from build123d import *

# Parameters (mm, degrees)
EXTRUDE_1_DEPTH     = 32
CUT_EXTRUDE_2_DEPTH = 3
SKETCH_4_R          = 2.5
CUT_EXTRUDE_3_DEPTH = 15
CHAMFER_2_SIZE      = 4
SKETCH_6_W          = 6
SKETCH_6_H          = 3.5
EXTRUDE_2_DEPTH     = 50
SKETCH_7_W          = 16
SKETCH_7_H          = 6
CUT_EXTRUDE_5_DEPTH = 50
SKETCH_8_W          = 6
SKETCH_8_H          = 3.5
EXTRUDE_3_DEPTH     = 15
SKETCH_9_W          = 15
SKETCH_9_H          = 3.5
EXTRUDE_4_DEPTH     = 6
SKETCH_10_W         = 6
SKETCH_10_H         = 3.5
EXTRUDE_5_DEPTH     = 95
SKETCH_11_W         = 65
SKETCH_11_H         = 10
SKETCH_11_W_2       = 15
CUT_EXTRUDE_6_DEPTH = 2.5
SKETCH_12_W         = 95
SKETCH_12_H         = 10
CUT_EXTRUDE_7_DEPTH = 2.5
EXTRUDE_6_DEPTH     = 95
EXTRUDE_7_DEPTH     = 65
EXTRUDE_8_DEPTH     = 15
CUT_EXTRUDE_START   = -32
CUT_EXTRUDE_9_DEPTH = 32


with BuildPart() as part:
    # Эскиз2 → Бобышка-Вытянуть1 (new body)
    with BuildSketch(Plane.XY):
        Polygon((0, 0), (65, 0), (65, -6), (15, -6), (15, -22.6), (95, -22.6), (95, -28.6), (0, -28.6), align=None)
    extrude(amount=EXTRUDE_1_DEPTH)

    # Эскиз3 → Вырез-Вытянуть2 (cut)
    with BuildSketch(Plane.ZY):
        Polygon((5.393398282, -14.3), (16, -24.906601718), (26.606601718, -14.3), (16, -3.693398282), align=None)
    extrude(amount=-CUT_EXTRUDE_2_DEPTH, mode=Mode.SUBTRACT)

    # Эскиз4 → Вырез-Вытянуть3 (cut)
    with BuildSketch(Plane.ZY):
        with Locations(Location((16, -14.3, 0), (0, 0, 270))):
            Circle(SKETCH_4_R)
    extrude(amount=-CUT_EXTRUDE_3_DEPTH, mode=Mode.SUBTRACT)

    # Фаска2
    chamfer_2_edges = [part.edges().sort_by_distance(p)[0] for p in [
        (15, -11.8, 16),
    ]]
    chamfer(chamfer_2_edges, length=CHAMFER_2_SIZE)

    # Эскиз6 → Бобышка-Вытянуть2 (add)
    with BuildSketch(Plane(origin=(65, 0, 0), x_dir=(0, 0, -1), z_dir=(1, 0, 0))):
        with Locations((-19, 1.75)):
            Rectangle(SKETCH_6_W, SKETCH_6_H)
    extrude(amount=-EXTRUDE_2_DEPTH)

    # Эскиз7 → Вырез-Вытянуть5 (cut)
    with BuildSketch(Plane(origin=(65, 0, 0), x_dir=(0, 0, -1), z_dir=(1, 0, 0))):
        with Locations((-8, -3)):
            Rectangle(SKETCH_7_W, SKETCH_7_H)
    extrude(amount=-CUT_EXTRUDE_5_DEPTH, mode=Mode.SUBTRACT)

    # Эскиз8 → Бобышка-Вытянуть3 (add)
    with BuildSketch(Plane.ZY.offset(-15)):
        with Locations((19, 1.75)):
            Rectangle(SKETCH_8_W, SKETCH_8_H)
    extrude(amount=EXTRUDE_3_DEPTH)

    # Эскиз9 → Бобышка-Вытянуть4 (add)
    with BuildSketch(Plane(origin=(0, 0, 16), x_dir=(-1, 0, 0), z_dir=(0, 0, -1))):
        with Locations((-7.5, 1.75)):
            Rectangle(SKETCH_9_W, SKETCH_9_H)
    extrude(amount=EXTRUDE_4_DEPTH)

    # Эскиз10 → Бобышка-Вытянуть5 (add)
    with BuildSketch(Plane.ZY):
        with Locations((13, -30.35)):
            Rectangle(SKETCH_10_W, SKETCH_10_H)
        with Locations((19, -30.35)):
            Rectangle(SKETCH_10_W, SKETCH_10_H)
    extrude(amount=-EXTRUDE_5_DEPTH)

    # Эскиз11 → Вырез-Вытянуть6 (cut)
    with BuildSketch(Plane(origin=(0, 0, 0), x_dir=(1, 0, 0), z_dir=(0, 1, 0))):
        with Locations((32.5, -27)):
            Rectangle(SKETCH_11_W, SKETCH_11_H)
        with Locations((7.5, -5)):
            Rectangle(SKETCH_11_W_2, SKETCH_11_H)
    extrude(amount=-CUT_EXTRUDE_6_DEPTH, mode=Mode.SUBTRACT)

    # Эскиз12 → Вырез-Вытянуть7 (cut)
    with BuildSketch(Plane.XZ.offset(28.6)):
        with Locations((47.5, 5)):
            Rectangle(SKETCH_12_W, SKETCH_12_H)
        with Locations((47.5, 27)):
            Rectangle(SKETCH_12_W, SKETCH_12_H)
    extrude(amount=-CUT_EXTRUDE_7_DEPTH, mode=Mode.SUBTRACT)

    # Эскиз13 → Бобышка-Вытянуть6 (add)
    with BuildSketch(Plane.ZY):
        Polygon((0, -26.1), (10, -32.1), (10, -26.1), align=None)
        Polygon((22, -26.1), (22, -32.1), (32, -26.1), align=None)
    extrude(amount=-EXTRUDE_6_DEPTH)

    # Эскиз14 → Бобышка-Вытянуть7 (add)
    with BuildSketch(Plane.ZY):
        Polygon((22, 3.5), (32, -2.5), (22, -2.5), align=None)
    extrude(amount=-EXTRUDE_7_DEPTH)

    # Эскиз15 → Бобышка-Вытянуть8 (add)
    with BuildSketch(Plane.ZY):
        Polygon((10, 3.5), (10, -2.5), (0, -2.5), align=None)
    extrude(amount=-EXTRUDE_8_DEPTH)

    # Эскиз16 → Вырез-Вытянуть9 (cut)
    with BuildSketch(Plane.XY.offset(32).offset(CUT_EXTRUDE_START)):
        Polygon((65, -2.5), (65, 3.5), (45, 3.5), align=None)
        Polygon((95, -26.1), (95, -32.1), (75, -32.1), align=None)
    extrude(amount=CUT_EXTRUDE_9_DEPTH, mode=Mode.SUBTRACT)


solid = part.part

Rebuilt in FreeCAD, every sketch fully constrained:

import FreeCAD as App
import Part
import Sketcher

V = App.Vector
Q = App.Units.Quantity


def edges_at(feature, points):
    """Names of the edges that pass closest to the given points."""
    edges = feature.Shape.Edges
    near = lambda p: min(range(len(edges)), key=lambda i: edges[i].distToShape(Part.Vertex(*p))[0])
    return sorted({f"Edge{near(p) + 1}" for p in points})


def add_polygon(sketch, points):
    """Adds a closed chain of lines whose ends are joined by coincident constraints."""
    first, n = sketch.GeometryCount, len(points)
    for a, b in zip(points, points[1:] + points[:1]):
        sketch.addGeometry(Part.LineSegment(App.Vector(*a, 0), App.Vector(*b, 0)), False)
    for i in range(n):
        sketch.addConstraint(Sketcher.Constraint("Coincident", first + i, 2, first + (i + 1) % n, 1))

doc = App.newDocument("Part")
body = doc.addObject("PartDesign::Body", "Body")

# Sketch on XY plane
sketch1 = doc.addObject("Sketcher::SketchObject", "Sketch")
body.addObject(sketch1)
sketch1.AttachmentSupport = (doc.XY_Plane, [""])
sketch1.MapMode = "FlatFace"
add_polygon(sketch1, [(65, 0), (0, 0), (0, -29), (95, -29), (95, -23), (15, -23), (15, -6), (65, -6)])  # lines 0-7
sketch1.addConstraint([
    Sketcher.Constraint("Horizontal", 0),
    Sketcher.Constraint("Vertical", 1),
    Sketcher.Constraint("Horizontal", 2),
    Sketcher.Constraint("Vertical", 3),
    Sketcher.Constraint("Horizontal", 4),
    Sketcher.Constraint("Vertical", 5),
    Sketcher.Constraint("Horizontal", 6),
    Sketcher.Constraint("Vertical", 7),
    Sketcher.Constraint("Coincident", 0, 2, -1, 1),
    Sketcher.Constraint("Equal", 3, 7),
    Sketcher.Constraint("DistanceX", 0, 2, 0, 1, Q("65 mm")),
    Sketcher.Constraint("DistanceX", 2, 1, 2, 2, Q("95 mm")),
    Sketcher.Constraint("DistanceX", 4, 2, 4, 1, Q("80 mm")),
    Sketcher.Constraint("DistanceY", 3, 1, 3, 2, Q("6 mm")),
    Sketcher.Constraint("DistanceY", 1, 2, 1, 1, Q("28.6 mm")),
])
pad1 = doc.addObject("PartDesign::Pad", "Pad")
body.addObject(pad1)
pad1.Profile = sketch1
pad1.Length = 32

# Sketch on YZ plane
sketch2 = doc.addObject("Sketcher::SketchObject", "Sketch001")
body.addObject(sketch2)
sketch2.AttachmentSupport = (doc.YZ_Plane, [""])
sketch2.MapMode = "FlatFace"
add_polygon(sketch2, [(-14, 5), (-25, 16), (-14, 27), (-4, 16)])  # lines 0-3
sketch2.addConstraint([
    Sketcher.Constraint("Perpendicular", 0, 1),
    Sketcher.Constraint("Perpendicular", 1, 2),
    Sketcher.Constraint("Perpendicular", 2, 3),
    Sketcher.Constraint("Horizontal", 0, 2, 2, 2),
    Sketcher.Constraint("Vertical", 1, 2, 3, 2),
    Sketcher.Constraint("Distance", 0, Q("15 mm")),
    Sketcher.Constraint("DistanceY", -1, 1, 0, 2, Q("16 mm")),
    Sketcher.Constraint("DistanceX", 1, 2, -1, 1, Q("14.3 mm")),
])
pocket1 = doc.addObject("PartDesign::Pocket", "Pocket")
body.addObject(pocket1)
pocket1.Profile = sketch2
pocket1.Length = 3
pocket1.Reversed = True

# Sketch on YZ plane
sketch3 = doc.addObject("Sketcher::SketchObject", "Sketch002")
body.addObject(sketch3)
sketch3.AttachmentSupport = (doc.YZ_Plane, [""])
sketch3.MapMode = "FlatFace"
sketch3.addGeometry(Part.Circle(V(-14.3, 16, 0), V(0, 0, 1), 2.5), False)
sketch3.addConstraint([
    Sketcher.Constraint("Diameter", 0, Q("5 mm")),
    Sketcher.Constraint("DistanceY", -1, 1, 0, 3, Q("16 mm")),
    Sketcher.Constraint("DistanceX", 0, 3, -1, 1, Q("14.3 mm")),
])
pocket2 = doc.addObject("PartDesign::Pocket", "Pocket001")
body.addObject(pocket2)
pocket2.Profile = sketch3
pocket2.Length = 15
pocket2.Reversed = True
doc.recompute()

chamfer = doc.addObject("PartDesign::Chamfer", "Chamfer")
body.addObject(chamfer)
chamfer.Base = (pocket2, edges_at(pocket2, [(15, -11.8, 16)]))
chamfer.Size = 4

# Sketch on YZ plane
sketch4 = doc.addObject("Sketcher::SketchObject", "Sketch003")
body.addObject(sketch4)
sketch4.AttachmentSupport = (doc.YZ_Plane, [""])
sketch4.MapMode = "FlatFace"
sketch4.AttachmentOffset = App.Placement(V(0, 0, 65), App.Rotation())
add_polygon(sketch4, [(3.5, 22), (0, 22), (0, 16), (3.5, 16)])  # lines 0-3
sketch4.addConstraint([
    Sketcher.Constraint("Horizontal", 0),
    Sketcher.Constraint("Vertical", 1),
    Sketcher.Constraint("Horizontal", 2),
    Sketcher.Constraint("Vertical", 3),
    Sketcher.Constraint("PointOnObject", 0, 2, -2),
    Sketcher.Constraint("DistanceY", 1, 2, 1, 1, Q("6 mm")),
    Sketcher.Constraint("DistanceX", 0, 2, 0, 1, Q("3.5 mm")),
    Sketcher.Constraint("DistanceY", -1, 1, 0, 2, Q("22 mm")),
])
pad2 = doc.addObject("PartDesign::Pad", "Pad001")
body.addObject(pad2)
pad2.Profile = sketch4
pad2.Length = 50
pad2.Reversed = True

# Sketch on YZ plane
sketch5 = doc.addObject("Sketcher::SketchObject", "Sketch004")
body.addObject(sketch5)
sketch5.AttachmentSupport = (doc.YZ_Plane, [""])
sketch5.MapMode = "FlatFace"
sketch5.AttachmentOffset = App.Placement(V(0, 0, 65), App.Rotation())
add_polygon(sketch5, [(0, 16), (-6, 16), (-6, 0), (0, 0)])  # lines 0-3
sketch5.addConstraint([
    Sketcher.Constraint("Horizontal", 0),
    Sketcher.Constraint("Vertical", 1),
    Sketcher.Constraint("Horizontal", 2),
    Sketcher.Constraint("Vertical", 3),
    Sketcher.Constraint("Coincident", 2, 2, -1, 1),
    Sketcher.Constraint("DistanceX", 0, 2, 0, 1, Q("6 mm")),
    Sketcher.Constraint("DistanceY", 1, 2, 1, 1, Q("16 mm")),
])
pocket3 = doc.addObject("PartDesign::Pocket", "Pocket002")
body.addObject(pocket3)
pocket3.Profile = sketch5
pocket3.Length = 50

# Sketch on YZ plane
sketch6 = doc.addObject("Sketcher::SketchObject", "Sketch005")
body.addObject(sketch6)
sketch6.AttachmentSupport = (doc.YZ_Plane, [""])
sketch6.MapMode = "FlatFace"
sketch6.AttachmentOffset = App.Placement(V(0, 0, 15), App.Rotation())
add_polygon(sketch6, [(3.5, 16), (0, 16), (0, 22), (3.5, 22)])  # lines 0-3
sketch6.addConstraint([
    Sketcher.Constraint("Horizontal", 0),
    Sketcher.Constraint("Vertical", 1),
    Sketcher.Constraint("Horizontal", 2),
    Sketcher.Constraint("Vertical", 3),
    Sketcher.Constraint("PointOnObject", 0, 2, -2),
    Sketcher.Constraint("DistanceY", 1, 1, 1, 2, Q("6 mm")),
    Sketcher.Constraint("DistanceX", 0, 2, 0, 1, Q("3.5 mm")),
    Sketcher.Constraint("DistanceY", -1, 1, 0, 2, Q("16 mm")),
])
pad3 = doc.addObject("PartDesign::Pad", "Pad002")
body.addObject(pad3)
pad3.Profile = sketch6
pad3.Length = 15
pad3.Reversed = True

# Sketch on XY plane
sketch7 = doc.addObject("Sketcher::SketchObject", "Sketch006")
body.addObject(sketch7)
sketch7.AttachmentSupport = (doc.XY_Plane, [""])
sketch7.MapMode = "FlatFace"
sketch7.AttachmentOffset = App.Placement(V(0, 0, 16), App.Rotation())
add_polygon(sketch7, [(15, 3.5), (15, 0), (0, 0), (0, 3.5)])  # lines 0-3
sketch7.addConstraint([
    Sketcher.Constraint("Vertical", 0),
    Sketcher.Constraint("Horizontal", 1),
    Sketcher.Constraint("Vertical", 2),
    Sketcher.Constraint("Horizontal", 3),
    Sketcher.Constraint("Coincident", 1, 2, -1, 1),
    Sketcher.Constraint("DistanceX", 1, 2, 1, 1, Q("15 mm")),
    Sketcher.Constraint("DistanceY", 0, 2, 0, 1, Q("3.5 mm")),
])
pad4 = doc.addObject("PartDesign::Pad", "Pad003")
body.addObject(pad4)
pad4.Profile = sketch7
pad4.Length = 6
pad4.Reversed = True

# Sketch on YZ plane
sketch8 = doc.addObject("Sketcher::SketchObject", "Sketch007")
body.addObject(sketch8)
sketch8.AttachmentSupport = (doc.YZ_Plane, [""])
sketch8.MapMode = "FlatFace"
add_polygon(sketch8, [(-28.6, 10), (-32.1, 10), (-32.1, 22), (-28.6, 22)])  # lines 0-3
sketch8.addConstraint([
    Sketcher.Constraint("Horizontal", 0),
    Sketcher.Constraint("Vertical", 1),
    Sketcher.Constraint("Horizontal", 2),
    Sketcher.Constraint("Vertical", 3),
    Sketcher.Constraint("DistanceY", 1, 1, 1, 2, Q("12 mm")),
    Sketcher.Constraint("DistanceX", 0, 2, 0, 1, Q("3.5 mm")),
    Sketcher.Constraint("DistanceY", -1, 1, 0, 2, Q("10 mm")),
    Sketcher.Constraint("DistanceX", 0, 2, -1, 1, Q("32.1 mm")),
])
pad5 = doc.addObject("PartDesign::Pad", "Pad004")
body.addObject(pad5)
pad5.Profile = sketch8
pad5.Length = 95

# Sketch on XZ plane
sketch9 = doc.addObject("Sketcher::SketchObject", "Sketch008")
body.addObject(sketch9)
sketch9.AttachmentSupport = (doc.XZ_Plane, [""])
sketch9.MapMode = "FlatFace"
add_polygon(sketch9, [(0, 22), (0, 32), (65, 32), (65, 22)])  # lines 0-3
add_polygon(sketch9, [(0, 0), (0, 10), (15, 10), (15, 0)])  # lines 4-7
sketch9.addConstraint([
    Sketcher.Constraint("Vertical", 0),
    Sketcher.Constraint("Horizontal", 1),
    Sketcher.Constraint("Vertical", 2),
    Sketcher.Constraint("Horizontal", 3),
    Sketcher.Constraint("Vertical", 4),
    Sketcher.Constraint("Horizontal", 5),
    Sketcher.Constraint("Vertical", 6),
    Sketcher.Constraint("Horizontal", 7),
    Sketcher.Constraint("Coincident", 7, 2, -1, 1),
    Sketcher.Constraint("PointOnObject", 0, 2, -2),
    Sketcher.Constraint("Equal", 2, 4),
    Sketcher.Constraint("DistanceX", 1, 1, 1, 2, Q("65 mm")),
    Sketcher.Constraint("DistanceX", 5, 1, 5, 2, Q("15 mm")),
    Sketcher.Constraint("DistanceY", 0, 1, 0, 2, Q("10 mm")),
    Sketcher.Constraint("DistanceY", -1, 1, 0, 2, Q("32 mm")),
])
pocket4 = doc.addObject("PartDesign::Pocket", "Pocket003")
body.addObject(pocket4)
pocket4.Profile = sketch9
pocket4.Length = 2.5
pocket4.Reversed = True

# Sketch on XZ plane
sketch10 = doc.addObject("Sketcher::SketchObject", "Sketch009")
body.addObject(sketch10)
sketch10.AttachmentSupport = (doc.XZ_Plane, [""])
sketch10.MapMode = "FlatFace"
sketch10.AttachmentOffset = App.Placement(V(0, 0, 28.6), App.Rotation())
add_polygon(sketch10, [(0, 10), (0, 0), (95, 0), (95, 10)])  # lines 0-3
add_polygon(sketch10, [(0, 32), (0, 22), (95, 22), (95, 32)])  # lines 4-7
sketch10.addConstraint([
    Sketcher.Constraint("Vertical", 0),
    Sketcher.Constraint("Horizontal", 1),
    Sketcher.Constraint("Vertical", 2),
    Sketcher.Constraint("Horizontal", 3),
    Sketcher.Constraint("Vertical", 4),
    Sketcher.Constraint("Horizontal", 5),
    Sketcher.Constraint("Vertical", 6),
    Sketcher.Constraint("Horizontal", 7),
    Sketcher.Constraint("Coincident", 0, 2, -1, 1),
    Sketcher.Constraint("PointOnObject", 4, 2, -2),
    Sketcher.Constraint("Vertical", 2, 2, 5, 2),
    Sketcher.Constraint("Equal", 2, 4),
    Sketcher.Constraint("DistanceX", 1, 1, 1, 2, Q("95 mm")),
    Sketcher.Constraint("DistanceY", 0, 2, 0, 1, Q("10 mm")),
    Sketcher.Constraint("DistanceY", -1, 1, 4, 2, Q("22 mm")),
])
pocket5 = doc.addObject("PartDesign::Pocket", "Pocket004")
body.addObject(pocket5)
pocket5.Profile = sketch10
pocket5.Length = 2.5

# Sketch on YZ plane
sketch11 = doc.addObject("Sketcher::SketchObject", "Sketch010")
body.addObject(sketch11)
sketch11.AttachmentSupport = (doc.YZ_Plane, [""])
sketch11.MapMode = "FlatFace"
add_polygon(sketch11, [(-26, 0), (-32, 10), (-26, 10)])  # lines 0-2
add_polygon(sketch11, [(-26, 22), (-32, 22), (-26, 32)])  # lines 3-5
sketch11.addConstraint([
    Sketcher.Constraint("Horizontal", 1),
    Sketcher.Constraint("Vertical", 2),
    Sketcher.Constraint("Horizontal", 3),
    Sketcher.Constraint("Vertical", 5),
    Sketcher.Constraint("PointOnObject", 2, 2, -1),
    Sketcher.Constraint("Vertical", 0, 2, 3, 2),
    Sketcher.Constraint("Vertical", 2, 2, 4, 2),
    Sketcher.Constraint("Equal", 2, 5),
    Sketcher.Constraint("DistanceX", 1, 1, 1, 2, Q("6 mm")),
    Sketcher.Constraint("DistanceY", 2, 2, 2, 1, Q("10 mm")),
    Sketcher.Constraint("DistanceY", -1, 1, 3, 2, Q("22 mm")),
    Sketcher.Constraint("DistanceX", 0, 2, -1, 1, Q("32.1 mm")),
])
pad6 = doc.addObject("PartDesign::Pad", "Pad005")
body.addObject(pad6)
pad6.Profile = sketch11
pad6.Length = 95

# Sketch on YZ plane
sketch12 = doc.addObject("Sketcher::SketchObject", "Sketch011")
body.addObject(sketch12)
sketch12.AttachmentSupport = (doc.YZ_Plane, [""])
sketch12.MapMode = "FlatFace"
add_polygon(sketch12, [(-2, 32), (4, 22), (-2, 22)])  # lines 0-2
sketch12.addConstraint([
    Sketcher.Constraint("Horizontal", 1),
    Sketcher.Constraint("Vertical", 2),
    Sketcher.Constraint("DistanceX", 1, 2, 1, 1, Q("6 mm")),
    Sketcher.Constraint("DistanceY", 2, 1, 2, 2, Q("10 mm")),
    Sketcher.Constraint("DistanceY", -1, 1, 0, 2, Q("22 mm")),
    Sketcher.Constraint("DistanceX", -1, 1, 0, 2, Q("3.5 mm")),
])
pad7 = doc.addObject("PartDesign::Pad", "Pad006")
body.addObject(pad7)
pad7.Profile = sketch12
pad7.Length = 65

# Sketch on YZ plane
sketch13 = doc.addObject("Sketcher::SketchObject", "Sketch012")
body.addObject(sketch13)
sketch13.AttachmentSupport = (doc.YZ_Plane, [""])
sketch13.MapMode = "FlatFace"
add_polygon(sketch13, [(-2, 10), (4, 10), (-2, 0)])  # lines 0-2
sketch13.addConstraint([
    Sketcher.Constraint("Horizontal", 0),
    Sketcher.Constraint("Vertical", 2),
    Sketcher.Constraint("PointOnObject", 1, 2, -1),
    Sketcher.Constraint("DistanceX", 0, 1, 0, 2, Q("6 mm")),
    Sketcher.Constraint("DistanceY", 2, 1, 2, 2, Q("10 mm")),
    Sketcher.Constraint("DistanceX", -1, 1, 0, 2, Q("3.5 mm")),
])
pad8 = doc.addObject("PartDesign::Pad", "Pad007")
body.addObject(pad8)
pad8.Profile = sketch13
pad8.Length = 15

# Sketch on XY plane
sketch14 = doc.addObject("Sketcher::SketchObject", "Sketch013")
body.addObject(sketch14)
sketch14.AttachmentSupport = (doc.XY_Plane, [""])
sketch14.MapMode = "FlatFace"
add_polygon(sketch14, [(65, -2), (65, 4), (45, 4)])  # lines 0-2
add_polygon(sketch14, [(95, -32), (95, -26), (75, -32)])  # lines 3-5
sketch14.addConstraint([
    Sketcher.Constraint("Vertical", 0),
    Sketcher.Constraint("Horizontal", 1),
    Sketcher.Constraint("Vertical", 3),
    Sketcher.Constraint("Horizontal", 5),
    Sketcher.Constraint("Equal", 1, 5),
    Sketcher.Constraint("Equal", 0, 3),
    Sketcher.Constraint("DistanceX", 1, 2, 1, 1, Q("20 mm")),
    Sketcher.Constraint("DistanceY", 0, 1, 0, 2, Q("6 mm")),
    Sketcher.Constraint("DistanceX", -1, 1, 0, 2, Q("65 mm")),
    Sketcher.Constraint("DistanceX", -1, 1, 3, 2, Q("95 mm")),
    Sketcher.Constraint("DistanceY", -1, 1, 0, 2, Q("3.5 mm")),
    Sketcher.Constraint("DistanceY", 3, 2, -1, 1, Q("26.1 mm")),
])
pocket6 = doc.addObject("PartDesign::Pocket", "Pocket005")
body.addObject(pocket6)
pocket6.Profile = sketch14
pocket6.Length = 32
pocket6.Reversed = True

doc.recompute()
